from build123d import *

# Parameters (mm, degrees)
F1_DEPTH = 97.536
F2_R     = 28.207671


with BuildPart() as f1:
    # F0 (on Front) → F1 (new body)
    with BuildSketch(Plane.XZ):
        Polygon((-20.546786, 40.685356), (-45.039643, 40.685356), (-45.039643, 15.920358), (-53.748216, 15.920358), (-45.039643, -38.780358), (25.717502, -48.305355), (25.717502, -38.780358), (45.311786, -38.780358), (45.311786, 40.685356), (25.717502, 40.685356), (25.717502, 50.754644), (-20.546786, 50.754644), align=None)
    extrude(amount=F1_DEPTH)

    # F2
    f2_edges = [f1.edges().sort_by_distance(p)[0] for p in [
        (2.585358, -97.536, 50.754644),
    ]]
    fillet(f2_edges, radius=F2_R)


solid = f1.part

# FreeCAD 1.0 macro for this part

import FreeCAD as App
import Part
import Sketcher

V = App.Vector
Q = App.Units.Quantity


def edges_at(feature, points):
    """Names of the edges that pass closest to the given points."""
    edges = feature.Shape.Edges
    near = lambda p: min(range(len(edges)), key=lambda i: edges[i].distToShape(Part.Vertex(*p))[0])
    return sorted({f"Edge{near(p) + 1}" for p in points})


def add_polygon(sketch, points):
    """Adds a closed chain of lines whose ends are joined by coincident constraints."""
    first, n = sketch.GeometryCount, len(points)
    for a, b in zip(points, points[1:] + points[:1]):
        sketch.addGeometry(Part.LineSegment(App.Vector(*a, 0), App.Vector(*b, 0)), False)
    for i in range(n):
        sketch.addConstraint(Sketcher.Constraint("Coincident", first + i, 2, first + (i + 1) % n, 1))

doc = App.newDocument("Part")
params = doc.addObject("Spreadsheet::Sheet", "Params")
for row, (alias, value) in enumerate([
    ("sketch1_height", "0.9749999 in"),
    ("sketch1_height2", "0.3749999 in"),
    ("pad1_length", "3.84 in"),
    ("fillet_radius", "28.207671 mm"),
], start=1):
    params.set(f"A{row}", alias)
    params.set(f"B{row}", "=" + value)
    params.setAlias(f"B{row}", alias)

body = doc.addObject("PartDesign::Body", "Body")

# Sketch on XZ plane
sketch1 = body.newObject("Sketcher::SketchObject", "Sketch")
sketch1.AttachmentSupport = (doc.getObject("XZ_Plane"), [""])
sketch1.MapMode = "FlatFace"
add_polygon(sketch1, [(-20.546786, 40.685356), (-45.039643, 40.685356), (-45.039643, 15.920358), (-53.748216, 15.920358), (-45.039643, -38.780358), (25.717502, -48.305355), (25.717502, -38.780358), (45.311786, -38.780358), (45.311786, 40.685356), (25.717502, 40.685356), (25.717502, 50.754644), (-20.546786, 50.754644)])  # lines 0-11
sketch1.addConstraint(Sketcher.Constraint("Horizontal", 0))
sketch1.addConstraint(Sketcher.Constraint("Vertical", 1))
sketch1.addConstraint(Sketcher.Constraint("Horizontal", 2))
sketch1.addConstraint(Sketcher.Constraint("Vertical", 5))
sketch1.addConstraint(Sketcher.Constraint("Horizontal", 6))
sketch1.addConstraint(Sketcher.Constraint("Vertical", 7))
sketch1.addConstraint(Sketcher.Constraint("Horizontal", 8))
sketch1.addConstraint(Sketcher.Constraint("Vertical", 9))
sketch1.addConstraint(Sketcher.Constraint("Horizontal", 10))
sketch1.addConstraint(Sketcher.Constraint("Vertical", 11))
sketch1.addConstraint(Sketcher.Constraint("Horizontal", 3, 2, 5, 2))
sketch1.addConstraint(Sketcher.Constraint("Horizontal", 0, 2, 7, 2))
sketch1.addConstraint(Sketcher.Constraint("Vertical", 1, 2, 3, 2))
sketch1.addConstraint(Sketcher.Constraint("Vertical", 5, 2, 8, 2))
sketch1.addConstraint(Sketcher.Constraint("DistanceX", 2, 2, 6, 2, Q("3.9000001 in")))
sketch1.addConstraint(Sketcher.Constraint("DistanceY", 1, 2, 1, 1, Q("0.9749999 in")))
sketch1.addConstraint(Sketcher.Constraint("DistanceY", 5, 1, 5, 2, Q("0.3749999 in")))
sketch1.addConstraint(Sketcher.Constraint("DistanceX", -1, 1, 4, 2, Q("1.0125001 in")))
sketch1.addConstraint(Sketcher.Constraint("Distance", 3, Q("55.389598 mm")))
sketch1.addConstraint(Sketcher.Constraint("Distance", 4, Q("71.395372 mm")))
sketch1.addConstraint(Sketcher.Constraint("DistanceX", 0, 2, 0, 1, Q("24.492857 mm")))
sketch1.addConstraint(Sketcher.Constraint("DistanceX", 2, 2, 2, 1, Q("8.708573 mm")))
sketch1.addConstraint(Sketcher.Constraint("DistanceY", 9, 1, 9, 2, Q("10.069288 mm")))
sketch1.addConstraint(Sketcher.Constraint("DistanceY", -1, 1, 0, 2, Q("40.685356 mm")))
sketch1.setExpression("Constraints[27]", "Params.sketch1_height")
sketch1.setExpression("Constraints[28]", "Params.sketch1_height2")
pad1 = body.newObject("PartDesign::Pad", "Pad")
pad1.Profile = sketch1
pad1.setExpression("Length", "Params.pad1_length")
doc.recompute()

fillet = body.newObject("PartDesign::Fillet", "Fillet")
fillet.Base = (pad1, edges_at(pad1, [(2.585, -97.536, 50.755)]))
fillet.setExpression("Radius", "Params.fillet_radius")

doc.recompute()
